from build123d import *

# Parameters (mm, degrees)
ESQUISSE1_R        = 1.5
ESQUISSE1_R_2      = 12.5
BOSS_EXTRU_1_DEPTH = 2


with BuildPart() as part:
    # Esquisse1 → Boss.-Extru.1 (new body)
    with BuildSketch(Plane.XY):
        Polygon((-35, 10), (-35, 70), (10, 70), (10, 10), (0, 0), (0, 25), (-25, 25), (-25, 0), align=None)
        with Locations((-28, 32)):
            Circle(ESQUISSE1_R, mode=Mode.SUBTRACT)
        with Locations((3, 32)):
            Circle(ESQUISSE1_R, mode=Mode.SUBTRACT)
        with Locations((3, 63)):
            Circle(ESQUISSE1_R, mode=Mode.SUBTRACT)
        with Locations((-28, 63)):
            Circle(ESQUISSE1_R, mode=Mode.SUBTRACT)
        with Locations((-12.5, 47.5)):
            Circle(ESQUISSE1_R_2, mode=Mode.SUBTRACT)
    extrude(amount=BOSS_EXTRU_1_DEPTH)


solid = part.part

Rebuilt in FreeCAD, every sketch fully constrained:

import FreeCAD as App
import Part
import Sketcher
Q = App.Units.Quantity


def add_polygon(sketch, points):
    """Adds a closed chain of lines whose ends are joined by coincident constraints."""
    first, n = sketch.GeometryCount, len(points)
    for a, b in zip(points, points[1:] + points[:1]):
        sketch.addGeometry(Part.LineSegment(App.Vector(*a, 0), App.Vector(*b, 0)), False)
    for i in range(n):
        sketch.addConstraint(Sketcher.Constraint("Coincident", first + i, 2, first + (i + 1) % n, 1))

doc = App.newDocument("Part")
params = doc.addObject("Spreadsheet::Sheet", "Params")
for row, (alias, value) in enumerate([
    ("sketch1_diameter", "3 mm"),
    ("sketch1_diameter2", "25 mm"),
    ("sketch1_width", "25 mm"),
    ("sketch1_width2", "45 mm"),
    ("sketch1_height", "60 mm"),
    ("pad1_length", "2 mm"),
], start=1):
    params.set(f"A{row}", alias)
    params.set(f"B{row}", "=" + value)
    params.setAlias(f"B{row}", alias)

body = doc.addObject("PartDesign::Body", "Body")

sketch1 = doc.addObject("Sketcher::SketchObject", "Sketch")
body.addObject(sketch1)
sketch1.AttachmentSupport = (doc.XY_Plane, [""])
sketch1.MapMode = "FlatFace"
add_polygon(sketch1, [(-35, 70), (-35, 10), (-25, 0), (-25, 25), (0, 25), (0, 0), (10, 10), (10, 70)])
sketch1.addGeometry(Part.Circle(App.Vector(3, 32, 0), App.Vector(0, 0, 1), 1.5), False)
sketch1.addGeometry(Part.Circle(App.Vector(-28, 32, 0), App.Vector(0, 0, 1), 1.5), False)
sketch1.addGeometry(Part.Circle(App.Vector(3, 63, 0), App.Vector(0, 0, 1), 1.5), False)
sketch1.addGeometry(Part.Circle(App.Vector(-12.5, 47.5, 0), App.Vector(0, 0, 1), 12.5), False)
sketch1.addGeometry(Part.Circle(App.Vector(-28, 63, 0), App.Vector(0, 0, 1), 1.5), False)
sketch1.addConstraint(Sketcher.Constraint("Vertical", 0))
sketch1.addConstraint(Sketcher.Constraint("Vertical", 2))
sketch1.addConstraint(Sketcher.Constraint("Horizontal", 3))
sketch1.addConstraint(Sketcher.Constraint("Vertical", 4))
sketch1.addConstraint(Sketcher.Constraint("Vertical", 6))
sketch1.addConstraint(Sketcher.Constraint("Horizontal", 7))
sketch1.addConstraint(Sketcher.Constraint("Coincident", 4, 2, -1, 1))
sketch1.addConstraint(Sketcher.Constraint("Equal", 8, 9))
sketch1.addConstraint(Sketcher.Constraint("Equal", 9, 10))
sketch1.addConstraint(Sketcher.Constraint("Equal", 10, 12))
sketch1.addConstraint(Sketcher.Constraint("PointOnObject", 1, 2, -1))
sketch1.addConstraint(Sketcher.Constraint("Perpendicular", 1, 5))
sketch1.addConstraint(Sketcher.Constraint("Horizontal", 8, 3, 9, 3))
sketch1.addConstraint(Sketcher.Constraint("Horizontal", 10, 3, 12, 3))
sketch1.addConstraint(Sketcher.Constraint("Horizontal", 0, 2, 5, 2))
sketch1.addConstraint(Sketcher.Constraint("Vertical", 8, 3, 10, 3))
sketch1.addConstraint(Sketcher.Constraint("Vertical", 9, 3, 12, 3))
sketch1.addConstraint(Sketcher.Constraint("Equal", 3, 2))
sketch1.addConstraint(Sketcher.Constraint("Equal", 1, 5))
sketch1.addConstraint(Sketcher.Constraint("Diameter", 8, Q("3 mm")))
sketch1.addConstraint(Sketcher.Constraint("Diameter", 11, Q("25 mm")))
sketch1.addConstraint(Sketcher.Constraint("DistanceX", 3, 1, 3, 2, Q("25 mm")))
sketch1.addConstraint(Sketcher.Constraint("DistanceX", 7, 2, 7, 1, Q("45 mm")))
sketch1.addConstraint(Sketcher.Constraint("DistanceY", 0, 2, 0, 1, Q("60 mm")))
sketch1.addConstraint(Sketcher.Constraint("DistanceX", -1, 1, 8, 3, Q("3 mm")))
sketch1.addConstraint(Sketcher.Constraint("DistanceY", -1, 1, 8, 3, Q("32 mm")))
sketch1.addConstraint(Sketcher.Constraint("DistanceX", 9, 3, -1, 1, Q("28 mm")))
sketch1.addConstraint(Sketcher.Constraint("DistanceY", -1, 1, 10, 3, Q("63 mm")))
sketch1.addConstraint(Sketcher.Constraint("DistanceX", 11, 3, -1, 1, Q("12.5 mm")))
sketch1.addConstraint(Sketcher.Constraint("DistanceY", -1, 1, 11, 3, Q("47.5 mm")))
sketch1.setExpression("Constraints[27]", "Params.sketch1_diameter")
sketch1.setExpression("Constraints[28]", "Params.sketch1_diameter2")
sketch1.setExpression("Constraints[29]", "Params.sketch1_width")
sketch1.setExpression("Constraints[30]", "Params.sketch1_width2")
sketch1.setExpression("Constraints[31]", "Params.sketch1_height")
pad1 = doc.addObject("PartDesign::Pad", "Pad")
body.addObject(pad1)
pad1.Profile = sketch1
pad1.setExpression("Length", "Params.pad1_length")

doc.recompute()
